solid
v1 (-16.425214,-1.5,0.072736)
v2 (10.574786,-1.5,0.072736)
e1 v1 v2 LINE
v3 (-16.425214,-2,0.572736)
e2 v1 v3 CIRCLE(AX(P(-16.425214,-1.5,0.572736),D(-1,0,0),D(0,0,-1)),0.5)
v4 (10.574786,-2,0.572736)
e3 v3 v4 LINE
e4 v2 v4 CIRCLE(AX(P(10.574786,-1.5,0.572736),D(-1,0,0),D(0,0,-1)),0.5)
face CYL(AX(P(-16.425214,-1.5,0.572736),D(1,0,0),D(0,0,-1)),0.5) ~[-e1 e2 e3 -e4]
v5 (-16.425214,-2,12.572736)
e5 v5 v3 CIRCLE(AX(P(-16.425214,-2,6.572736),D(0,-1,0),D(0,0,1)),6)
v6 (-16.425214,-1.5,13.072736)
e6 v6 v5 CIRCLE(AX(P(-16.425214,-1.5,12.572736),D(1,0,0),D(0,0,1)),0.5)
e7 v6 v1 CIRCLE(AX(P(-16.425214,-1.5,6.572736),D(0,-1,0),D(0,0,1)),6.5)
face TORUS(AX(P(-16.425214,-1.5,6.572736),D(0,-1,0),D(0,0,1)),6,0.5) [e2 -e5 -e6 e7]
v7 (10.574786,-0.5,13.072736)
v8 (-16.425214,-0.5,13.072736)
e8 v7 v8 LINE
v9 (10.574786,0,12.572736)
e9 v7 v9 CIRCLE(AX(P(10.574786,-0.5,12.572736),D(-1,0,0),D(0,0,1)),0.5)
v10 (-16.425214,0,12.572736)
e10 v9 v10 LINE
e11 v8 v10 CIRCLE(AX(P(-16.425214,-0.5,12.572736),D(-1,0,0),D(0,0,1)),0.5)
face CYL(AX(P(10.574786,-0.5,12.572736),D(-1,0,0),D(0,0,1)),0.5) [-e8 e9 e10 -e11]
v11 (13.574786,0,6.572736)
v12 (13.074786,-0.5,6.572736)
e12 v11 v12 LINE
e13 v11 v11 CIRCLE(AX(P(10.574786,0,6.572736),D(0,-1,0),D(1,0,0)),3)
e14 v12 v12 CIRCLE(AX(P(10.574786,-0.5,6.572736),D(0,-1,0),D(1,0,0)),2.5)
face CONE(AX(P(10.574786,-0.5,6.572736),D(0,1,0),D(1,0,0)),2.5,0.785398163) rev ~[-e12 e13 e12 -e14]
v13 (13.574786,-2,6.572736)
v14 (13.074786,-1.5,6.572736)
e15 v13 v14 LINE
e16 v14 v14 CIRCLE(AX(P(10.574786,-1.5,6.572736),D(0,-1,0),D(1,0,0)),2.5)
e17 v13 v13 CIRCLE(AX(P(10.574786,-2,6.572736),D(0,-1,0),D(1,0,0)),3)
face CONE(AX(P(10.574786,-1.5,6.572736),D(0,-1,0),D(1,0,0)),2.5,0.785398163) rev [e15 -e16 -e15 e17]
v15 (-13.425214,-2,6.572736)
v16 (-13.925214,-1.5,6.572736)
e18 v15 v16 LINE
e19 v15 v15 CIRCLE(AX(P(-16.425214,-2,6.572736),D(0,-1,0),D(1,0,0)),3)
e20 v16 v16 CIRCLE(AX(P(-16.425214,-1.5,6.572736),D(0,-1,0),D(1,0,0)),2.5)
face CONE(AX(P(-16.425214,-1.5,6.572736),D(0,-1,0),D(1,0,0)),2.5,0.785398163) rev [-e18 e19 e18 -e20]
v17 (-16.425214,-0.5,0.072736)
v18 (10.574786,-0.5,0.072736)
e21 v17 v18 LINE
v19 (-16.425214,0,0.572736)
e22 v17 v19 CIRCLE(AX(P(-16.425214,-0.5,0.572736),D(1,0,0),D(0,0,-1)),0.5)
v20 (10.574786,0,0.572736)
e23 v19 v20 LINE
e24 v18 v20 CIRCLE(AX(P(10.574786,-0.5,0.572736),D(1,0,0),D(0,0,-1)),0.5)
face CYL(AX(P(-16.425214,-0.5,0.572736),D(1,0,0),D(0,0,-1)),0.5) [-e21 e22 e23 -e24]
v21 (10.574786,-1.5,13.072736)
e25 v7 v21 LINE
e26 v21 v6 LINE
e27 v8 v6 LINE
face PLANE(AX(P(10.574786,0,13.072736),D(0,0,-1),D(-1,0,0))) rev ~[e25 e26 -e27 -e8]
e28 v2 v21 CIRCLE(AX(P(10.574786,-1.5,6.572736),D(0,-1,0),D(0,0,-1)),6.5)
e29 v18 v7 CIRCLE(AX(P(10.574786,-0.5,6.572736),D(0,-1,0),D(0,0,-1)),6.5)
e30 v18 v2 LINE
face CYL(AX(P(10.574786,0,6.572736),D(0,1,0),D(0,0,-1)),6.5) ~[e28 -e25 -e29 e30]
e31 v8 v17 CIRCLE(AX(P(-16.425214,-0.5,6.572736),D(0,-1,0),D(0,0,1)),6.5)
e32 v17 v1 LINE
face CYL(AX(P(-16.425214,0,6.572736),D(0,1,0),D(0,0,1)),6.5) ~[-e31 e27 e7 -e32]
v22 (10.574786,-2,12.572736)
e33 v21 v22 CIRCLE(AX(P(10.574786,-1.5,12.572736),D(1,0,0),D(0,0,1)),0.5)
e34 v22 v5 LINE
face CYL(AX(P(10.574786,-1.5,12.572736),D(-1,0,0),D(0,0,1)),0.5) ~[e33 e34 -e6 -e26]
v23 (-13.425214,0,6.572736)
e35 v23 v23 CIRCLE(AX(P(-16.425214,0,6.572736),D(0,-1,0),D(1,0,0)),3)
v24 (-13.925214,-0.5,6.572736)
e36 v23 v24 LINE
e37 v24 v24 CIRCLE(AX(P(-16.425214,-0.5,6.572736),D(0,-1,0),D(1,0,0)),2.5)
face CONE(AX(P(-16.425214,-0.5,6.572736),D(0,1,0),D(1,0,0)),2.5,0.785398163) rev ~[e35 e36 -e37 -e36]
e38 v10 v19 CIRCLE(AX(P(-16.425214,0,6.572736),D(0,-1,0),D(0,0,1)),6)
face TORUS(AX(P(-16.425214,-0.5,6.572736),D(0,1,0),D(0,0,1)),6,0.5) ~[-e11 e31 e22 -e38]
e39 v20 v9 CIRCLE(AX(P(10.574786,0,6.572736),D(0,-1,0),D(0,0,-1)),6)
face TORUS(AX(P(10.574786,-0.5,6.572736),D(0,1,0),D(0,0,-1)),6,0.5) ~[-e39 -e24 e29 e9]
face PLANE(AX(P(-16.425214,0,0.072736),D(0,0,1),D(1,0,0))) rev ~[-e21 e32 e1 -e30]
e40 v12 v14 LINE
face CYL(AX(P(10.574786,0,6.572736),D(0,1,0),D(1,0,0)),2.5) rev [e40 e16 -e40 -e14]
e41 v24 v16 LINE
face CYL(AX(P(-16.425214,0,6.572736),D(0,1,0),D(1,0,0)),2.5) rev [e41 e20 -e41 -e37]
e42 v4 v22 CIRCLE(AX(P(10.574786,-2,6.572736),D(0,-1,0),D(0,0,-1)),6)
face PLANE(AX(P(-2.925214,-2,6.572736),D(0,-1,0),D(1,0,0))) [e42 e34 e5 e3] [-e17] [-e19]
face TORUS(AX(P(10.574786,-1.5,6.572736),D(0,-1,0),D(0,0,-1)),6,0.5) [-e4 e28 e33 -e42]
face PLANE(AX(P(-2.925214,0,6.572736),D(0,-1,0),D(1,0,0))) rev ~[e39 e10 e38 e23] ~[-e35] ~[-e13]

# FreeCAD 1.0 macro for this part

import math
import FreeCAD as App
import Part
import Sketcher
from FreeCAD import Vector


def edges_at(feature, points):
    """Names of the edges that pass closest to the given points."""
    edges = feature.Shape.Edges
    near = lambda p: min(range(len(edges)), key=lambda i: edges[i].distToShape(Part.Vertex(*p))[0])
    return sorted({f"Edge{near(p) + 1}" for p in points})

doc = App.newDocument("Part")
body = doc.addObject("PartDesign::Body", "Body")

sketch1 = body.newObject("Sketcher::SketchObject", "Sketch")
sketch1.AttachmentSupport = (doc.getObject("XZ_Plane"), [""])
sketch1.MapMode = "FlatFace"
sketch1.addGeometry(Part.LineSegment(Vector(10.574786, 13.072736, 0), Vector(-16.425214, 13.072736, 0)), False)
sketch1.addGeometry(Part.ArcOfCircle(Part.Circle(Vector(-16.425214, 6.572736, 0), Vector(0, 0, 1), 6.5), math.radians(90), math.radians(270)), False)
sketch1.addGeometry(Part.LineSegment(Vector(-16.425214, 0.072736, 0), Vector(10.574786, 0.072736, 0)), False)
sketch1.addGeometry(Part.ArcOfCircle(Part.Circle(Vector(10.574786, 6.572736, 0), Vector(0, 0, 1), 6.5), math.radians(-90), math.radians(90)), False)
sketch1.addGeometry(Part.Circle(Vector(-16.425214, 6.572736, 0), Vector(0, 0, 1), 2.5), False)
sketch1.addGeometry(Part.Circle(Vector(10.574786, 6.572736, 0), Vector(0, 0, 1), 2.5), False)
sketch1.addConstraint(Sketcher.Constraint("Tangent", 0, 2, 1, 1))
sketch1.addConstraint(Sketcher.Constraint("Tangent", 1, 2, 2, 1))
sketch1.addConstraint(Sketcher.Constraint("Tangent", 2, 2, 3, 1))
sketch1.addConstraint(Sketcher.Constraint("Tangent", 3, 2, 0, 1))
sketch1.addConstraint(Sketcher.Constraint("Horizontal", 0))
sketch1.addConstraint(Sketcher.Constraint("Horizontal", 2))
sketch1.addConstraint(Sketcher.Constraint("Coincident", 4, 3, 1, 3))
sketch1.addConstraint(Sketcher.Constraint("Coincident", 5, 3, 3, 3))
sketch1.addConstraint(Sketcher.Constraint("Equal", 4, 5))
sketch1.addConstraint(Sketcher.Constraint("Diameter", 4, 5.0))
sketch1.addConstraint(Sketcher.Constraint("Radius", 1, 6.5))
sketch1.addConstraint(Sketcher.Constraint("DistanceX", 0, 2, 0, 1, 27.0))
sketch1.addConstraint(Sketcher.Constraint("DistanceX", 1, 3, -1, 1, 16.425214))
sketch1.addConstraint(Sketcher.Constraint("DistanceY", -1, 1, 1, 3, 6.572736))
pad1 = body.newObject("PartDesign::Pad", "Pad")
pad1.Profile = sketch1
pad1.Length = 2
doc.recompute()

fillet = body.newObject("PartDesign::Fillet", "Fillet")
fillet.Base = (pad1, edges_at(pad1, [(-22.925, -2, 6.573), (-2.925, 0, 0.073)]))
fillet.Radius = 0.5
doc.recompute()

chamfer = body.newObject("PartDesign::Chamfer", "Chamfer")
chamfer.Base = (fillet, edges_at(fillet, [
    (-18.925, -2, 6.573),
    (8.075, 0, 6.573),
    (8.075, -2, 6.573),
    (-2.925, -0.5, 13.073),
    (-18.925, 0, 6.573),
]))
chamfer.Size = 0.5

doc.recompute()
